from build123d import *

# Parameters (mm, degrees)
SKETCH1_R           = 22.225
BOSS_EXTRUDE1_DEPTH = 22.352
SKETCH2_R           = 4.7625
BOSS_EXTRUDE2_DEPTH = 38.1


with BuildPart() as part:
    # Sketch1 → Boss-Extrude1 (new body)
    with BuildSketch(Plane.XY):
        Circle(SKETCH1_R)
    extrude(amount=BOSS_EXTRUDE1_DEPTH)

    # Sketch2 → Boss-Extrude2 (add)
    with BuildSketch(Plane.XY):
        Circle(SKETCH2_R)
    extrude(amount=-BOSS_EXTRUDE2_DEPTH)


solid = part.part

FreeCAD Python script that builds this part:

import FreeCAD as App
import Part
import Sketcher
Q = App.Units.Quantity

doc = App.newDocument("Part")
params = doc.addObject("Spreadsheet::Sheet", "Params")
for row, (alias, value) in enumerate([
    ("sketch1_diameter", "1.75 in"),
    ("pad1_length", "0.88 in"),
    ("sketch2_diameter", "0.375 in"),
    ("pad2_length", "1.5 in"),
], start=1):
    params.set(f"A{row}", alias)
    params.set(f"B{row}", "=" + value)
    params.setAlias(f"B{row}", alias)

body = doc.addObject("PartDesign::Body", "Body")

# Sketch on XY plane
sketch1 = body.newObject("Sketcher::SketchObject", "Sketch")
sketch1.AttachmentSupport = (doc.getObject("XY_Plane"), [""])
sketch1.MapMode = "FlatFace"
sketch1.addGeometry(Part.Circle(App.Vector(0, 0, 0), App.Vector(0, 0, 1), 22), False)
sketch1.addConstraint([
    Sketcher.Constraint("Coincident", 0, 3, -1, 1),
    Sketcher.Constraint("Diameter", 0, Q("1.75 in")),
])
sketch1.setExpression("Constraints[1]", "Params.sketch1_diameter")
pad1 = body.newObject("PartDesign::Pad", "Pad")
pad1.Profile = sketch1
pad1.setExpression("Length", "Params.pad1_length")

# Sketch on XY plane
sketch2 = body.newObject("Sketcher::SketchObject", "Sketch001")
sketch2.AttachmentSupport = (doc.getObject("XY_Plane"), [""])
sketch2.MapMode = "FlatFace"
sketch2.addGeometry(Part.Circle(App.Vector(0, 0, 0), App.Vector(0, 0, 1), 4.8), False)
sketch2.addConstraint([
    Sketcher.Constraint("Coincident", 0, 3, -1, 1),
    Sketcher.Constraint("Diameter", 0, Q("0.375 in")),
])
sketch2.setExpression("Constraints[1]", "Params.sketch2_diameter")
pad2 = body.newObject("PartDesign::Pad", "Pad001")
pad2.Profile = sketch2
pad2.setExpression("Length", "Params.pad2_length")
pad2.Reversed = True

doc.recompute()
